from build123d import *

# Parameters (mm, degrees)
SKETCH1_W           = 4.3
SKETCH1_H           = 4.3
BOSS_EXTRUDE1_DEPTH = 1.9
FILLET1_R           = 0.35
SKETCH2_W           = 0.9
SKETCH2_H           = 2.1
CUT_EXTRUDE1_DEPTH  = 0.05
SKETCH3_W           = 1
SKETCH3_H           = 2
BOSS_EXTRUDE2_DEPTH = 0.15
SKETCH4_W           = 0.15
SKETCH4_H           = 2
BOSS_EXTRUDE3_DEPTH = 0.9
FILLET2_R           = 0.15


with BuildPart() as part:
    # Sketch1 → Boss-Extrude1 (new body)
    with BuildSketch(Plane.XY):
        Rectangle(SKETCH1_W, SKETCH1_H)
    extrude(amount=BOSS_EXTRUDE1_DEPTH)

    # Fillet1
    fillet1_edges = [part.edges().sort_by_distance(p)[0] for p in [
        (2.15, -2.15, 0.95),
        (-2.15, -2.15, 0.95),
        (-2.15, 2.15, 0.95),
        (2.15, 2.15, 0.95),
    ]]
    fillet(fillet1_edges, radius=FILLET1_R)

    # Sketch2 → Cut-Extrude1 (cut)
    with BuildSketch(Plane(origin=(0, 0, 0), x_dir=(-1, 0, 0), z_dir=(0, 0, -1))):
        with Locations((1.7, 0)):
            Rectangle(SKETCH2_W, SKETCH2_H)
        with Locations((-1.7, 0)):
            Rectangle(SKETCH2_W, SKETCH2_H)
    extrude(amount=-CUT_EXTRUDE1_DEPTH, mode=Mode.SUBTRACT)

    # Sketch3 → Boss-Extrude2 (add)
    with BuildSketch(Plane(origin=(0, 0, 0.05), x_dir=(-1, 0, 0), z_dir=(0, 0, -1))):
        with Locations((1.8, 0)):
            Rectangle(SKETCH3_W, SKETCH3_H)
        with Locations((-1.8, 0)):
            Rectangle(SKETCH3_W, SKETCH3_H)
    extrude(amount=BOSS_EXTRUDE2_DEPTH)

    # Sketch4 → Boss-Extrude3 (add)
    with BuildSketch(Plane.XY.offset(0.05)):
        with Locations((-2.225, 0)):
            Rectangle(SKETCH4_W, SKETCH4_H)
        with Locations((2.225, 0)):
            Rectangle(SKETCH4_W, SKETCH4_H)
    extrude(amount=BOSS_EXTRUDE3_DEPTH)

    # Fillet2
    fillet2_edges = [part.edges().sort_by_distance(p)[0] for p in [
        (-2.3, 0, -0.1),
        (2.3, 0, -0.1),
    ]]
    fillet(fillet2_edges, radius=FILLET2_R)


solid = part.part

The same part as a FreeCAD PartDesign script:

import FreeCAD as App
import Part
import Sketcher
from FreeCAD import Vector
Q = App.Units.Quantity


def edges_at(feature, points):
    """Names of the edges that pass closest to the given points."""
    edges = feature.Shape.Edges
    near = lambda p: min(range(len(edges)), key=lambda i: edges[i].distToShape(Part.Vertex(*p))[0])
    return sorted({f"Edge{near(p) + 1}" for p in points})

doc = App.newDocument("Part")
body = doc.addObject("PartDesign::Body", "Body")

sketch1 = body.newObject("Sketcher::SketchObject", "Sketch")
sketch1.AttachmentSupport = (doc.getObject("XY_Plane"), [""])
sketch1.MapMode = "FlatFace"
sketch1.addGeometry([
    Part.LineSegment(Vector(-2.1, 2.1, 0), Vector(-2.1, -2.1, 0)),
    Part.LineSegment(Vector(-2.1, -2.1, 0), Vector(2.1, -2.1, 0)),
    Part.LineSegment(Vector(2.1, -2.1, 0), Vector(2.1, 2.1, 0)),
    Part.LineSegment(Vector(2.1, 2.1, 0), Vector(-2.1, 2.1, 0)),
], False)
sketch1.addConstraint([
    Sketcher.Constraint("Coincident", 0, 2, 1, 1),
    Sketcher.Constraint("Coincident", 1, 2, 2, 1),
    Sketcher.Constraint("Coincident", 2, 2, 3, 1),
    Sketcher.Constraint("Coincident", 3, 2, 0, 1),
    Sketcher.Constraint("Vertical", 0),
    Sketcher.Constraint("Horizontal", 1),
    Sketcher.Constraint("Vertical", 2),
    Sketcher.Constraint("Horizontal", 3),
    Sketcher.Constraint("Symmetric", 0, 2, 2, 2, -1, 1),
    Sketcher.Constraint("Equal", 3, 0),
    Sketcher.Constraint("DistanceX", 1, 1, 1, 2, Q("4.3 mm")),
])
pad1 = body.newObject("PartDesign::Pad", "Pad")
pad1.Profile = sketch1
pad1.Length = 1.9
doc.recompute()

fillet = body.newObject("PartDesign::Fillet", "Fillet")
fillet.Base = (pad1, edges_at(pad1, [
    (2.15, -2.15, 0.95),
    (-2.15, -2.15, 0.95),
    (-2.15, 2.15, 0.95),
    (2.15, 2.15, 0.95),
]))
fillet.Radius = 0.35

sketch2 = body.newObject("Sketcher::SketchObject", "Sketch001")
sketch2.AttachmentSupport = (doc.getObject("XY_Plane"), [""])
sketch2.MapMode = "FlatFace"
sketch2.addGeometry([
    Part.LineSegment(Vector(-1.2, 1.1, 0), Vector(-1.2, -1.1, 0)),
    Part.LineSegment(Vector(-1.2, -1.1, 0), Vector(-2.1, -1.1, 0)),
    Part.LineSegment(Vector(-2.1, -1.1, 0), Vector(-2.1, 1.1, 0)),
    Part.LineSegment(Vector(-2.1, 1.1, 0), Vector(-1.2, 1.1, 0)),
    Part.LineSegment(Vector(2.1, 1.1, 0), Vector(2.1, -1.1, 0)),
    Part.LineSegment(Vector(2.1, -1.1, 0), Vector(1.2, -1.1, 0)),
    Part.LineSegment(Vector(1.2, -1.1, 0), Vector(1.2, 1.1, 0)),
    Part.LineSegment(Vector(1.2, 1.1, 0), Vector(2.1, 1.1, 0)),
], False)
sketch2.addConstraint([
    Sketcher.Constraint("Coincident", 0, 2, 1, 1),
    Sketcher.Constraint("Coincident", 1, 2, 2, 1),
    Sketcher.Constraint("Coincident", 2, 2, 3, 1),
    Sketcher.Constraint("Coincident", 3, 2, 0, 1),
    Sketcher.Constraint("Coincident", 4, 2, 5, 1),
    Sketcher.Constraint("Coincident", 5, 2, 6, 1),
    Sketcher.Constraint("Coincident", 6, 2, 7, 1),
    Sketcher.Constraint("Coincident", 7, 2, 4, 1),
    Sketcher.Constraint("Vertical", 0),
    Sketcher.Constraint("Horizontal", 1),
    Sketcher.Constraint("Vertical", 2),
    Sketcher.Constraint("Horizontal", 3),
    Sketcher.Constraint("Vertical", 4),
    Sketcher.Constraint("Horizontal", 5),
    Sketcher.Constraint("Vertical", 6),
    Sketcher.Constraint("Horizontal", 7),
    Sketcher.Constraint("Symmetric", 2, 2, 4, 2, -1, 1),
    Sketcher.Constraint("Symmetric", 0, 2, 6, 2, -1, 1),
    Sketcher.Constraint("Horizontal", 1, 2, 4, 2),
    Sketcher.Constraint("DistanceX", 1, 2, 1, 1, Q("0.9 mm")),
    Sketcher.Constraint("DistanceY", 0, 2, 0, 1, Q("2.1 mm")),
    Sketcher.Constraint("DistanceX", 0, 2, 4, 2, Q("3.4 mm")),
])
pocket1 = body.newObject("PartDesign::Pocket", "Pocket")
pocket1.Profile = sketch2
pocket1.Length = 0.05
pocket1.Reversed = True

sketch3 = body.newObject("Sketcher::SketchObject", "Sketch002")
sketch3.AttachmentSupport = (doc.getObject("XY_Plane"), [""])
sketch3.MapMode = "FlatFace"
sketch3.AttachmentOffset = App.Placement(Vector(0, 0, 0.05), App.Rotation())
sketch3.addGeometry([
    Part.LineSegment(Vector(-1.3, 1, 0), Vector(-1.3, -1, 0)),
    Part.LineSegment(Vector(-1.3, -1, 0), Vector(-2.3, -1, 0)),
    Part.LineSegment(Vector(-2.3, -1, 0), Vector(-2.3, 1, 0)),
    Part.LineSegment(Vector(-2.3, 1, 0), Vector(-1.3, 1, 0)),
    Part.LineSegment(Vector(2.3, 1, 0), Vector(2.3, -1, 0)),
    Part.LineSegment(Vector(2.3, -1, 0), Vector(1.3, -1, 0)),
    Part.LineSegment(Vector(1.3, -1, 0), Vector(1.3, 1, 0)),
    Part.LineSegment(Vector(1.3, 1, 0), Vector(2.3, 1, 0)),
], False)
sketch3.addConstraint([
    Sketcher.Constraint("Coincident", 0, 2, 1, 1),
    Sketcher.Constraint("Coincident", 1, 2, 2, 1),
    Sketcher.Constraint("Coincident", 2, 2, 3, 1),
    Sketcher.Constraint("Coincident", 3, 2, 0, 1),
    Sketcher.Constraint("Coincident", 4, 2, 5, 1),
    Sketcher.Constraint("Coincident", 5, 2, 6, 1),
    Sketcher.Constraint("Coincident", 6, 2, 7, 1),
    Sketcher.Constraint("Coincident", 7, 2, 4, 1),
    Sketcher.Constraint("Vertical", 0),
    Sketcher.Constraint("Horizontal", 1),
    Sketcher.Constraint("Vertical", 2),
    Sketcher.Constraint("Horizontal", 3),
    Sketcher.Constraint("Vertical", 4),
    Sketcher.Constraint("Horizontal", 5),
    Sketcher.Constraint("Vertical", 6),
    Sketcher.Constraint("Horizontal", 7),
    Sketcher.Constraint("Symmetric", 2, 2, 4, 2, -1, 1),
    Sketcher.Constraint("Symmetric", 0, 2, 6, 2, -1, 1),
    Sketcher.Constraint("Horizontal", 1, 2, 4, 2),
    Sketcher.Constraint("DistanceX", 1, 2, 1, 1, Q("1 mm")),
    Sketcher.Constraint("DistanceY", 0, 2, 0, 1, Q("2 mm")),
    Sketcher.Constraint("DistanceX", 0, 2, -1, 1, Q("1.3 mm")),
])
pad2 = body.newObject("PartDesign::Pad", "Pad001")
pad2.Profile = sketch3
pad2.Length = 0.15
pad2.Reversed = True

sketch4 = body.newObject("Sketcher::SketchObject", "Sketch003")
sketch4.AttachmentSupport = (doc.getObject("XY_Plane"), [""])
sketch4.MapMode = "FlatFace"
sketch4.AttachmentOffset = App.Placement(Vector(0, 0, 0.05), App.Rotation())
sketch4.addGeometry([
    Part.LineSegment(Vector(-2.3, 1, 0), Vector(-2.3, -1, 0)),
    Part.LineSegment(Vector(-2.3, -1, 0), Vector(-2.15, -1, 0)),
    Part.LineSegment(Vector(-2.15, -1, 0), Vector(-2.15, 1, 0)),
    Part.LineSegment(Vector(-2.15, 1, 0), Vector(-2.3, 1, 0)),
    Part.LineSegment(Vector(2.15, 1, 0), Vector(2.15, -1, 0)),
    Part.LineSegment(Vector(2.15, -1, 0), Vector(2.3, -1, 0)),
    Part.LineSegment(Vector(2.3, -1, 0), Vector(2.3, 1, 0)),
    Part.LineSegment(Vector(2.3, 1, 0), Vector(2.15, 1, 0)),
], False)
sketch4.addConstraint([
    Sketcher.Constraint("Coincident", 0, 2, 1, 1),
    Sketcher.Constraint("Coincident", 1, 2, 2, 1),
    Sketcher.Constraint("Coincident", 2, 2, 3, 1),
    Sketcher.Constraint("Coincident", 3, 2, 0, 1),
    Sketcher.Constraint("Coincident", 4, 2, 5, 1),
    Sketcher.Constraint("Coincident", 5, 2, 6, 1),
    Sketcher.Constraint("Coincident", 6, 2, 7, 1),
    Sketcher.Constraint("Coincident", 7, 2, 4, 1),
    Sketcher.Constraint("Vertical", 0),
    Sketcher.Constraint("Horizontal", 1),
    Sketcher.Constraint("Vertical", 2),
    Sketcher.Constraint("Horizontal", 3),
    Sketcher.Constraint("Vertical", 4),
    Sketcher.Constraint("Horizontal", 5),
    Sketcher.Constraint("Vertical", 6),
    Sketcher.Constraint("Horizontal", 7),
    Sketcher.Constraint("Symmetric", 2, 2, 4, 2, -1, 1),
    Sketcher.Constraint("Symmetric", 0, 2, 6, 2, -1, 1),
    Sketcher.Constraint("Horizontal", 1, 2, 4, 2),
    Sketcher.Constraint("DistanceY", 0, 2, 0, 1, Q("2 mm")),
    Sketcher.Constraint("DistanceX", 1, 1, 1, 2, Q("0.15 mm")),
    Sketcher.Constraint("DistanceX", 0, 2, -1, 1, Q("2.3 mm")),
])
pad3 = body.newObject("PartDesign::Pad", "Pad002")
pad3.Profile = sketch4
pad3.Length = 0.9
doc.recompute()

fillet2 = body.newObject("PartDesign::Fillet", "Fillet001")
fillet2.Base = (pad3, edges_at(pad3, [(-2.3, 0, -0.1), (2.3, 0, -0.1)]))
fillet2.Radius = 0.15

doc.recompute()
